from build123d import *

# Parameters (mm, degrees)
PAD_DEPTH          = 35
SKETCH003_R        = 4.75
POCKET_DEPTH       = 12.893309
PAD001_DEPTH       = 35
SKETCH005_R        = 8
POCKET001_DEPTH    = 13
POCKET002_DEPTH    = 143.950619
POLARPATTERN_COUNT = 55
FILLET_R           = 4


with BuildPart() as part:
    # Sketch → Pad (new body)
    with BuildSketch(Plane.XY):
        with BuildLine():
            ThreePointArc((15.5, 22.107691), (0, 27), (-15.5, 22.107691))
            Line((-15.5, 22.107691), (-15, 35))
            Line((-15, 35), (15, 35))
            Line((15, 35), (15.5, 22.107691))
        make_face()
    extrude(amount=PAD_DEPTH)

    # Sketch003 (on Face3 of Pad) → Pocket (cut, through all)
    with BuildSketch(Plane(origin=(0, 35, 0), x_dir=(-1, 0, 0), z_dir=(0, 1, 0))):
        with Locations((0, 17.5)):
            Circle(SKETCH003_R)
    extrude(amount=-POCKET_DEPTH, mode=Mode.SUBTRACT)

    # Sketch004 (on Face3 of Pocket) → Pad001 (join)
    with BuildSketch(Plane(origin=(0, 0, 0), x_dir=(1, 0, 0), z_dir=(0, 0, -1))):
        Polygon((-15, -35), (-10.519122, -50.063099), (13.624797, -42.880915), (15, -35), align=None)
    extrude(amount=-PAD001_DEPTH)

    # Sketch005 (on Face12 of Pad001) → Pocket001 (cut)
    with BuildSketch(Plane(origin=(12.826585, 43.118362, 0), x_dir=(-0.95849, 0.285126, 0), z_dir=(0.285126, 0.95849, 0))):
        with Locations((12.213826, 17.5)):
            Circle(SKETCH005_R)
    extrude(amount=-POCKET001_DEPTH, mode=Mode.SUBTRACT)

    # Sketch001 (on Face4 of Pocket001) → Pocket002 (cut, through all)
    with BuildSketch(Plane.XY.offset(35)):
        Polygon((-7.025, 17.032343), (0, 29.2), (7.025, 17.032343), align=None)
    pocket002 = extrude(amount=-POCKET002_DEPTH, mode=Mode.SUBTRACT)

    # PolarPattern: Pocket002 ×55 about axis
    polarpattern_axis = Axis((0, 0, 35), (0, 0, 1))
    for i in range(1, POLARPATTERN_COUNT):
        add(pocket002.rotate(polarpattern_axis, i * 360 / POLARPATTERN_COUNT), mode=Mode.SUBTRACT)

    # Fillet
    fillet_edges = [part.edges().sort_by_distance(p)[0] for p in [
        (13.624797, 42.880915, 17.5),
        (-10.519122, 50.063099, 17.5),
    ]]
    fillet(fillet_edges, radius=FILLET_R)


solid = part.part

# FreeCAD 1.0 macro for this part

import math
import FreeCAD as App
import Part
import Sketcher
from FreeCAD import Vector
Q = App.Units.Quantity


def edges_at(feature, points):
    """Names of the edges that pass closest to the given points."""
    edges = feature.Shape.Edges
    near = lambda p: min(range(len(edges)), key=lambda i: edges[i].distToShape(Part.Vertex(*p))[0])
    return sorted({f"Edge{near(p) + 1}" for p in points})


def add_polygon(sketch, points):
    """Adds a closed chain of lines whose ends are joined by coincident constraints."""
    first, n = sketch.GeometryCount, len(points)
    for a, b in zip(points, points[1:] + points[:1]):
        sketch.addGeometry(Part.LineSegment(App.Vector(*a, 0), App.Vector(*b, 0)), False)
    for i in range(n):
        sketch.addConstraint(Sketcher.Constraint("Coincident", first + i, 2, first + (i + 1) % n, 1))

doc = App.newDocument("Part")
body = doc.addObject("PartDesign::Body", "Body")

# Sketch on XY plane
sketch1 = body.newObject("Sketcher::SketchObject", "Sketch")
sketch1.AttachmentSupport = (doc.getObject("XY_Plane"), [""])
sketch1.MapMode = "FlatFace"
sketch1.addGeometry([
    Part.ArcOfCircle(Part.Circle(Vector(0, 0, 0), Vector(0, 0, 1), 27), math.radians(55), math.radians(125)),
    Part.LineSegment(Vector(16, 22, 0), Vector(15, 35, 0)),
    Part.LineSegment(Vector(15, 35, 0), Vector(-15, 35, 0)),
    Part.LineSegment(Vector(-15, 35, 0), Vector(-16, 22, 0)),
], False)
sketch1.addConstraint([
    Sketcher.Constraint("Coincident", 0, 1, 1, 1),
    Sketcher.Constraint("Coincident", 1, 2, 2, 1),
    Sketcher.Constraint("Coincident", 2, 2, 3, 1),
    Sketcher.Constraint("Coincident", 3, 2, 0, 2),
    Sketcher.Constraint("Horizontal", 2),
    Sketcher.Constraint("Coincident", 0, 3, -1, 1),
    Sketcher.Constraint("Horizontal", 0, 1, 3, 2),
    Sketcher.Constraint("Equal", 1, 3),
    Sketcher.Constraint("Radius", 0, 27.0),
    Sketcher.Constraint("DistanceX", 2, 2, 2, 1, 30.0),
    Sketcher.Constraint("DistanceY", -1, 1, 1, 2, 35.0),
    Sketcher.Constraint("DistanceX", 3, 2, 0, 1, 31.0),
])
pad1 = body.newObject("PartDesign::Pad", "Pad")
pad1.Profile = sketch1
pad1.Length = 35

# Sketch on XZ plane
sketch2 = body.newObject("Sketcher::SketchObject", "Sketch001")
sketch2.AttachmentSupport = (doc.getObject("XZ_Plane"), [""])
sketch2.MapMode = "FlatFace"
sketch2.AttachmentOffset = App.Placement(Vector(0, 0, -35), App.Rotation())
sketch2.addGeometry(Part.Circle(Vector(0, 17.5, 0), Vector(0, 0, 1), 4.8), False)
sketch2.addConstraint([
    Sketcher.Constraint("PointOnObject", 0, 3, -2),
    Sketcher.Constraint("Diameter", 0, 9.5),
    Sketcher.Constraint("DistanceY", -1, 1, 0, 3, 17.5),
])
pocket1 = body.newObject("PartDesign::Pocket", "Pocket")
pocket1.Profile = sketch2
pocket1.Type = "ThroughAll"
pocket1.Reversed = True

# Sketch on XY plane
sketch3 = body.newObject("Sketcher::SketchObject", "Sketch002")
sketch3.AttachmentSupport = (doc.getObject("XY_Plane"), [""])
sketch3.MapMode = "FlatFace"
add_polygon(sketch3, [(-15, 35), (-11, 50), (14, 43), (15, 35)])  # lines 0-3
sketch3.addConstraint([
    Sketcher.Constraint("Horizontal", 3),
    Sketcher.Constraint("Perpendicular", 0, 1),
    Sketcher.Constraint("DistanceX", 3, 2, 3, 1, 30.0),
    Sketcher.Constraint("Distance", 2, 8.0),
    Sketcher.Constraint("DistanceX", -1, 1, 2, 2, 15.0),
    Sketcher.Constraint("DistanceY", -1, 1, 2, 2, 35.0),
    Sketcher.Constraint("DistanceY", -1, 1, 0, 2, 50.063099),
    Sketcher.Constraint("DistanceX", 0, 2, 1, 2, 24.143919),
])
pad2 = body.newObject("PartDesign::Pad", "Pad001")
pad2.Profile = sketch3
pad2.Length = 35

# Sketch on an angled plane
sketch4 = body.newObject("Sketcher::SketchObject", "Sketch003")
sketch4.Placement = App.Placement(Vector(12.826585, 43.118362, 0), App.Rotation(Vector(-0.95849004, 0.285126012, 0), Vector(0, 0, 0.999999999), Vector(0.285126012, 0.95849004, 0), "ZXY"))
sketch4.addGeometry(Part.Circle(Vector(12, 17, 0), Vector(0, 0, 1), 8), False)
sketch4.addConstraint([
    Sketcher.Constraint("Diameter", 0, 16.0),
    Sketcher.Constraint("DistanceY", -1, 1, 0, 3, 17.5),
    Sketcher.Constraint("DistanceX", -1, 1, 0, 3, 12.213826),
])
pocket2 = body.newObject("PartDesign::Pocket", "Pocket001")
pocket2.Profile = sketch4
pocket2.Length = 13

# Sketch on XY plane
sketch5 = body.newObject("Sketcher::SketchObject", "Sketch004")
sketch5.AttachmentSupport = (doc.getObject("XY_Plane"), [""])
sketch5.MapMode = "FlatFace"
sketch5.AttachmentOffset = App.Placement(Vector(0, 0, 35), App.Rotation())
add_polygon(sketch5, [(0, 29), (-7, 17), (7, 17)])  # lines 0-2
sketch5.addConstraint([
    Sketcher.Constraint("Horizontal", 1),
    Sketcher.Constraint("PointOnObject", 2, 2, -2),
    Sketcher.Constraint("Equal", 0, 2),
    Sketcher.Constraint("Angle", 0, Q("-120 deg")),
    Sketcher.Constraint("DistanceX", 1, 1, 1, 2, 14.05),
    Sketcher.Constraint("DistanceY", -1, 1, 2, 2, 29.2),
])
pocket3 = body.newObject("PartDesign::Pocket", "Pocket002")
pocket3.Profile = sketch5
pocket3.Type = "ThroughAll"
doc.recompute()

polarpattern = body.newObject("PartDesign::PolarPattern", "PolarPattern")
polarpattern.Originals = [pocket3]
polarpattern.Axis = (doc.getObject("Z_Axis"), [""])
polarpattern.Angle = 360
polarpattern.Occurrences = 55
body.Tip = polarpattern
doc.recompute()

fillet = body.newObject("PartDesign::Fillet", "Fillet")
fillet.Base = (polarpattern, edges_at(polarpattern, [(13.625, 42.881, 17.5), (-10.519, 50.063, 17.5)]))
fillet.Radius = 4

doc.recompute()
